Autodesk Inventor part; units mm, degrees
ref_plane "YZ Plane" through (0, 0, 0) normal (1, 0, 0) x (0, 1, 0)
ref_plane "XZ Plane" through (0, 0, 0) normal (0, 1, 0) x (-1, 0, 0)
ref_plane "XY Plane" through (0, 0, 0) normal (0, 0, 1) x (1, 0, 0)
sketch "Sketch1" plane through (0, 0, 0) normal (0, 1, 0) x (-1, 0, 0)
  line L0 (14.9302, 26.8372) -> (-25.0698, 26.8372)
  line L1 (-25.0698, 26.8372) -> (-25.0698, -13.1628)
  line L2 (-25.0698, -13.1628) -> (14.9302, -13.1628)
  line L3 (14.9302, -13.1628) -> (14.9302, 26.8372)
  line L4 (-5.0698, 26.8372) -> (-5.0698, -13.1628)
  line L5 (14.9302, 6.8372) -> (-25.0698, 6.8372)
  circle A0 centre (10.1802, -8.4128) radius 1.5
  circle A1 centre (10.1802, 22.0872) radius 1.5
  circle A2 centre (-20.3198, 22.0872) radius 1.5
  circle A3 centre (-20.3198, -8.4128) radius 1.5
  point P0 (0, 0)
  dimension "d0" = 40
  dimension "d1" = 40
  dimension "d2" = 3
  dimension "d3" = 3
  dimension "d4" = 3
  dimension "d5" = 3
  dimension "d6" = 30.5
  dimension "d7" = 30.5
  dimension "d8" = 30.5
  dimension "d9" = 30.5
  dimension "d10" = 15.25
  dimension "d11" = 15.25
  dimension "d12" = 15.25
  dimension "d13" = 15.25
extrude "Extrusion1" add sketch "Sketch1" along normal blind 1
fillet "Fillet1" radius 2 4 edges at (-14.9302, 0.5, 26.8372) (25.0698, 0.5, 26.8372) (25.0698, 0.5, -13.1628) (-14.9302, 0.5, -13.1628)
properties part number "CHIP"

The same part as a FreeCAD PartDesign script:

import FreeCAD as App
import Part
import Sketcher

V = App.Vector
Q = App.Units.Quantity


def edges_at(feature, points):
    """Names of the edges that pass closest to the given points."""
    edges = feature.Shape.Edges
    near = lambda p: min(range(len(edges)), key=lambda i: edges[i].distToShape(Part.Vertex(*p))[0])
    return sorted({f"Edge{near(p) + 1}" for p in points})

doc = App.newDocument("Part")
params = doc.addObject("Spreadsheet::Sheet", "Params")
for row, (alias, value) in enumerate([
    ("sketch1_diameter", "3 mm"),
    ("sketch1_width", "40 mm"),
    ("pad1_length", "1 mm"),
    ("fillet_radius", "2 mm"),
], start=1):
    params.set(f"A{row}", alias)
    params.set(f"B{row}", "=" + value)
    params.setAlias(f"B{row}", alias)

body = doc.addObject("PartDesign::Body", "Body")

# Sketch on XZ plane
sketch1 = body.newObject("Sketcher::SketchObject", "Sketch")
sketch1.AttachmentSupport = (doc.getObject("XZ_Plane"), [""])
sketch1.MapMode = "FlatFace"
sketch1.addGeometry([
    Part.LineSegment(V(-14.9, 26.8, 0), V(25.1, 26.8, 0)),  # 0
    Part.LineSegment(V(25.1, 26.8, 0), V(25.1, -13.2, 0)),  # 1
    Part.LineSegment(V(25.1, -13.2, 0), V(-14.9, -13.2, 0)),  # 2
    Part.LineSegment(V(-14.9, -13.2, 0), V(-14.9, 26.8, 0)),  # 3
    Part.Circle(V(-10.2, 22.1, 0), V(0, 0, 1), 1.5),  # 4
    Part.Circle(V(-10.2, -8.4, 0), V(0, 0, 1), 1.5),  # 5
    Part.Circle(V(20.3, 22.1, 0), V(0, 0, 1), 1.5),  # 6
    Part.Circle(V(20.3, -8.4, 0), V(0, 0, 1), 1.5),  # 7
], False)
sketch1.addConstraint([
    Sketcher.Constraint("Coincident", 0, 2, 1, 1),
    Sketcher.Constraint("Coincident", 1, 2, 2, 1),
    Sketcher.Constraint("Coincident", 2, 2, 3, 1),
    Sketcher.Constraint("Coincident", 3, 2, 0, 1),
    Sketcher.Constraint("Horizontal", 0),
    Sketcher.Constraint("Vertical", 1),
    Sketcher.Constraint("Horizontal", 2),
    Sketcher.Constraint("Vertical", 3),
    Sketcher.Constraint("Equal", 4, 5),
    Sketcher.Constraint("Equal", 5, 6),
    Sketcher.Constraint("Equal", 6, 7),
    Sketcher.Constraint("Horizontal", 4, 3, 6, 3),
    Sketcher.Constraint("Horizontal", 5, 3, 7, 3),
    Sketcher.Constraint("Vertical", 4, 3, 5, 3),
    Sketcher.Constraint("Vertical", 6, 3, 7, 3),
    Sketcher.Constraint("Equal", 2, 1),
    Sketcher.Constraint("Diameter", 4, Q("3 mm")),
    Sketcher.Constraint("DistanceX", 0, 1, 0, 2, Q("40 mm")),
    Sketcher.Constraint("DistanceY", 5, 3, 4, 3, Q("30.5 mm")),
    Sketcher.Constraint("DistanceX", 4, 3, 6, 3, Q("30.5 mm")),
    Sketcher.Constraint("DistanceX", 6, 3, 0, 2, Q("4.75 mm")),
    Sketcher.Constraint("DistanceY", 6, 3, 0, 2, Q("4.75 mm")),
    Sketcher.Constraint("DistanceX", 4, 3, -1, 1, Q("10.1802 mm")),
    Sketcher.Constraint("DistanceY", -1, 1, 4, 3, Q("22.0872 mm")),
])
sketch1.setExpression("Constraints[16]", "Params.sketch1_diameter")
sketch1.setExpression("Constraints[17]", "Params.sketch1_width")
pad1 = body.newObject("PartDesign::Pad", "Pad")
pad1.Profile = sketch1
pad1.setExpression("Length", "Params.pad1_length")
pad1.Reversed = True
doc.recompute()

fillet = body.newObject("PartDesign::Fillet", "Fillet")
fillet.Base = (pad1, edges_at(pad1, [
    (-14.93, 0.5, 26.837),
    (25.07, 0.5, 26.837),
    (25.07, 0.5, -13.163),
    (-14.93, 0.5, -13.163),
]))
fillet.setExpression("Radius", "Params.fillet_radius")

doc.recompute()
